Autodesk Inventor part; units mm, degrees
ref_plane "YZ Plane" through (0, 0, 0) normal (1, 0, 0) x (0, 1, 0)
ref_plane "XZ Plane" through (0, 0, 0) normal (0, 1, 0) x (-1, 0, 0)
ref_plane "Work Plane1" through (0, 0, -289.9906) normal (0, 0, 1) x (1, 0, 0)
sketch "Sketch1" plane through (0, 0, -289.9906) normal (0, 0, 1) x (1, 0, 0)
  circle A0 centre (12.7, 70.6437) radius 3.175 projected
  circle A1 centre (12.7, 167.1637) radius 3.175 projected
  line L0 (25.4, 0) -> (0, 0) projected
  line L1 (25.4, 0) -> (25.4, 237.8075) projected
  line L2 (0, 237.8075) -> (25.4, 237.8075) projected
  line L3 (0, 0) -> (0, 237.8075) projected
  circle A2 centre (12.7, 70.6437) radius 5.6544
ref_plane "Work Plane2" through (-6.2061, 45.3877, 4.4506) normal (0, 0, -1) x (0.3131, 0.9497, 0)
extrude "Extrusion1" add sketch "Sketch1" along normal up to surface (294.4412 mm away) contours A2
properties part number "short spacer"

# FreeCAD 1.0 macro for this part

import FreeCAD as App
import Part
import Sketcher

V = App.Vector
Q = App.Units.Quantity

doc = App.newDocument("Part")
body = doc.addObject("PartDesign::Body", "Body")

# Sketch on XY plane
sketch1 = body.newObject("Sketcher::SketchObject", "Sketch")
sketch1.AttachmentSupport = (doc.getObject("XY_Plane"), [""])
sketch1.MapMode = "FlatFace"
sketch1.AttachmentOffset = App.Placement(V(0, 0, -289.9906), App.Rotation())
sketch1.addGeometry([
    Part.Circle(V(12.7, 70.6, 0), V(0, 0, 1), 5.7),
    Part.Circle(V(12.7, 70.6, 0), V(0, 0, 1), 3.2),
], False)
sketch1.addConstraint([
    Sketcher.Constraint("Coincident", 1, 3, 0, 3),
    Sketcher.Constraint("Diameter", 1, Q("0.25 in")),
    Sketcher.Constraint("DistanceX", -1, 1, 0, 3, Q("0.5 in")),
    Sketcher.Constraint("Diameter", 0, 11.3088),
    Sketcher.Constraint("DistanceY", -1, 1, 0, 3, Q("2.781248 in")),
])
pad1 = body.newObject("PartDesign::Pad", "Pad")
pad1.Profile = sketch1
pad1.Length = 294.4412

doc.recompute()
